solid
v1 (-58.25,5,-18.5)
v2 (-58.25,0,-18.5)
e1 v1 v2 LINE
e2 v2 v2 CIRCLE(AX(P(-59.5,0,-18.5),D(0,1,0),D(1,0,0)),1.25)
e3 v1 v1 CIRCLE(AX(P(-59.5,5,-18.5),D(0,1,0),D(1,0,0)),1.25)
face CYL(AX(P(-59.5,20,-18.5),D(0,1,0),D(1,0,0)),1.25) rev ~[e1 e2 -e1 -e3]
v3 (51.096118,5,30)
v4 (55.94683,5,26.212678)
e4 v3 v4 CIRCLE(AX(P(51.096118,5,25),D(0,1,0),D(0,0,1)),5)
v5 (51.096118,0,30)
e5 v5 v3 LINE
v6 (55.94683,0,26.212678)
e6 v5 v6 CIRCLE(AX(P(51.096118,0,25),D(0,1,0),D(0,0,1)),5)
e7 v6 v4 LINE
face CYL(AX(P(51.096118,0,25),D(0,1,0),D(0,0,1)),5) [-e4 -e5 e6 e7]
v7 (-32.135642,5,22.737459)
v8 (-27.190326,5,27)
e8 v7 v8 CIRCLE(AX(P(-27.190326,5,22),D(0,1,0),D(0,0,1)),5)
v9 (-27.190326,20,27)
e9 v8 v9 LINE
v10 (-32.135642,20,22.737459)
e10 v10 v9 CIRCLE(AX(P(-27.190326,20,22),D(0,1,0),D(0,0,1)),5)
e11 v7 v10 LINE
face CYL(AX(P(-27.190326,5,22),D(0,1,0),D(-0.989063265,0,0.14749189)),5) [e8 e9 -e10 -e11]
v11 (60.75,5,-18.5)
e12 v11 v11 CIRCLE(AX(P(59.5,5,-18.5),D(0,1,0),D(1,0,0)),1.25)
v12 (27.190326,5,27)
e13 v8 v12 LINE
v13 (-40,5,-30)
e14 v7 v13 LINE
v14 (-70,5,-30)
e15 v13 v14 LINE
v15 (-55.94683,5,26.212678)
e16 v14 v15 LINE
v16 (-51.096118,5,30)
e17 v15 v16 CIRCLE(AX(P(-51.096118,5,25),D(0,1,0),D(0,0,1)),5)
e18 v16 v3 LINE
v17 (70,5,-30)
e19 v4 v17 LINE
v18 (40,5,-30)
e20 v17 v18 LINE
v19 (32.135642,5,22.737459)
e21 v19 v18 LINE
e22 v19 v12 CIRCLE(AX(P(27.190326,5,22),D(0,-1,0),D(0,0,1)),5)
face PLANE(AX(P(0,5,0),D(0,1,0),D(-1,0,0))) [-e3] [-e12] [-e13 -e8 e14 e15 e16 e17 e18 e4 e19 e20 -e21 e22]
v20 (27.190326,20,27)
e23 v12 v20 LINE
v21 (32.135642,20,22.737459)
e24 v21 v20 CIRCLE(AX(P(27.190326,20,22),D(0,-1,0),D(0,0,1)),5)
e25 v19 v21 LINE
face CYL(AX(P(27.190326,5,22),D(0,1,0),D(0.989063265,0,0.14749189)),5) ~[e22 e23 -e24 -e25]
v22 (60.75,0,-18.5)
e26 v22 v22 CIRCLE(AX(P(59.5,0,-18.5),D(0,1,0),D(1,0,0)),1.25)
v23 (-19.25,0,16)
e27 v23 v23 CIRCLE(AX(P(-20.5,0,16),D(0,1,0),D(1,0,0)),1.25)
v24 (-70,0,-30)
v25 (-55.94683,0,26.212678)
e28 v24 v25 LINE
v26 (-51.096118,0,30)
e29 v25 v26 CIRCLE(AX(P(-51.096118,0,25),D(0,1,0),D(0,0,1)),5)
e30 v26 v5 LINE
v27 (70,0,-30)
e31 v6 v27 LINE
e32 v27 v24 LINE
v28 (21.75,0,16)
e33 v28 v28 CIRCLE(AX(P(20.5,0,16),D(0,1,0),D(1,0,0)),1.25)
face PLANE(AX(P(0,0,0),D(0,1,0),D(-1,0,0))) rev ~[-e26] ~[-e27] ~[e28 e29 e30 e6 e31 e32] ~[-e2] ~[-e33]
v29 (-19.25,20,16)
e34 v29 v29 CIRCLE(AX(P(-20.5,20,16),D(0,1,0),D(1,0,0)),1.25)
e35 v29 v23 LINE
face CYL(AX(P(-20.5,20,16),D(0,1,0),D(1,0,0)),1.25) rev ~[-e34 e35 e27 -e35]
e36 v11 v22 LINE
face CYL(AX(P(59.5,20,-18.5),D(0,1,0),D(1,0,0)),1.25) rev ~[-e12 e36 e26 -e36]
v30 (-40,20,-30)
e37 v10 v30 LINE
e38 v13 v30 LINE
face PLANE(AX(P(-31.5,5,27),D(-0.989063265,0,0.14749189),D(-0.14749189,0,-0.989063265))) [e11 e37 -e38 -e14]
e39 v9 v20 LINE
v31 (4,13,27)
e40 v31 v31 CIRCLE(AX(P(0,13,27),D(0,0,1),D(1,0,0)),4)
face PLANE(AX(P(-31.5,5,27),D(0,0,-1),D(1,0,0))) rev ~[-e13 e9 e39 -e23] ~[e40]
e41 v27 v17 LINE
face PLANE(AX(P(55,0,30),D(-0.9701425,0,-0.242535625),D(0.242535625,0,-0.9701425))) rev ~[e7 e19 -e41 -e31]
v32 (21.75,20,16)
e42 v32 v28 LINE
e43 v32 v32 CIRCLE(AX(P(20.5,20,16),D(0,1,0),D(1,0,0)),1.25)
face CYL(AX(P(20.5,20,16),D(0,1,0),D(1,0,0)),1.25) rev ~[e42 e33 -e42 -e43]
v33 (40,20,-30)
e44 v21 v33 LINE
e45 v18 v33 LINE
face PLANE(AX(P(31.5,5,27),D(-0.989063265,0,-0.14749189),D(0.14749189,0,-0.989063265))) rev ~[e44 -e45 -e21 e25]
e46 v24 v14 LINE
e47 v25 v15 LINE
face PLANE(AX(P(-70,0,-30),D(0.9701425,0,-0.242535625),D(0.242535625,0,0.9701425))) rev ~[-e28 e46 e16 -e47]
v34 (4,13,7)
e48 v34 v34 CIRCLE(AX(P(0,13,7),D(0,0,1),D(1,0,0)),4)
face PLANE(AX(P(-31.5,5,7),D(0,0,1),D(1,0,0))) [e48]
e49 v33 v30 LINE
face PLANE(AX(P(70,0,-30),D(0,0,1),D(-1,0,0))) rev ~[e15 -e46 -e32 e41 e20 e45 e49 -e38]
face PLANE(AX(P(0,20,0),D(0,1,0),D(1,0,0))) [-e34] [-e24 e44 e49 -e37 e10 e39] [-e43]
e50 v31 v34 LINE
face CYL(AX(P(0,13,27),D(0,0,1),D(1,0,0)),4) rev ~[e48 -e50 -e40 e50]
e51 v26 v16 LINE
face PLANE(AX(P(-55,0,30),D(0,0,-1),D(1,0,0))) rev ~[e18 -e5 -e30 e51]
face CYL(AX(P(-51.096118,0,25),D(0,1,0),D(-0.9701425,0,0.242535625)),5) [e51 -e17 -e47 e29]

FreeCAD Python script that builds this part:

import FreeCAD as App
import Part
import Sketcher
from FreeCAD import Vector
Q = App.Units.Quantity


def edges_at(feature, points):
    """Names of the edges that pass closest to the given points."""
    edges = feature.Shape.Edges
    near = lambda p: min(range(len(edges)), key=lambda i: edges[i].distToShape(Part.Vertex(*p))[0])
    return sorted({f"Edge{near(p) + 1}" for p in points})


def add_polygon(sketch, points):
    """Adds a closed chain of lines whose ends are joined by coincident constraints."""
    first, n = sketch.GeometryCount, len(points)
    for a, b in zip(points, points[1:] + points[:1]):
        sketch.addGeometry(Part.LineSegment(App.Vector(*a, 0), App.Vector(*b, 0)), False)
    for i in range(n):
        sketch.addConstraint(Sketcher.Constraint("Coincident", first + i, 2, first + (i + 1) % n, 1))

doc = App.newDocument("Part")
body = doc.addObject("PartDesign::Body", "Body")

sketch1 = body.newObject("Sketcher::SketchObject", "Sketch")
sketch1.AttachmentSupport = (doc.getObject("XZ_Plane"), [""])
sketch1.MapMode = "FlatFace"
add_polygon(sketch1, [(-70, -30), (-55, 30), (55, 30), (70, -30)])
sketch1.addConstraint([
    Sketcher.Constraint("Horizontal", 1),
    Sketcher.Constraint("Horizontal", 3),
    Sketcher.Constraint("Equal", 0, 2),
    Sketcher.Constraint("DistanceX", 1, 1, 1, 2, Q("110 mm")),
    Sketcher.Constraint("DistanceX", 3, 2, 3, 1, Q("140 mm")),
    Sketcher.Constraint("DistanceX", 0, 2, -1, 1, Q("55 mm")),
    Sketcher.Constraint("DistanceY", -1, 1, 0, 2, Q("30 mm")),
    Sketcher.Constraint("DistanceY", 2, 2, -1, 1, Q("30 mm")),
])
pad1 = body.newObject("PartDesign::Pad", "Pad")
pad1.Profile = sketch1
pad1.Length = 5
pad1.Reversed = True

sketch2 = body.newObject("Sketcher::SketchObject", "Sketch001")
sketch2.AttachmentSupport = (doc.getObject("XZ_Plane"), [""])
sketch2.MapMode = "FlatFace"
sketch2.AttachmentOffset = App.Placement(Vector(0, 0, -5), App.Rotation())
add_polygon(sketch2, [(-40, -30), (-32, 27), (32, 27), (40, -30)])
sketch2.addConstraint([
    Sketcher.Constraint("Horizontal", 1),
    Sketcher.Constraint("Horizontal", 3),
    Sketcher.Constraint("Equal", 0, 2),
    Sketcher.Constraint("DistanceX", 1, 1, 1, 2, Q("63 mm")),
    Sketcher.Constraint("DistanceX", 3, 2, 3, 1, Q("80 mm")),
    Sketcher.Constraint("DistanceX", -1, 1, 2, 2, Q("40 mm")),
    Sketcher.Constraint("DistanceY", -1, 1, 0, 2, Q("27 mm")),
    Sketcher.Constraint("DistanceY", 2, 2, -1, 1, Q("30 mm")),
])
pad2 = body.newObject("PartDesign::Pad", "Pad001")
pad2.Profile = sketch2
pad2.Length = 15
pad2.Reversed = True

sketch3 = body.newObject("Sketcher::SketchObject", "Sketch002")
sketch3.AttachmentSupport = (doc.getObject("XY_Plane"), [""])
sketch3.MapMode = "FlatFace"
sketch3.AttachmentOffset = App.Placement(Vector(0, 0, 27), App.Rotation())
sketch3.addGeometry(Part.Circle(Vector(0, 13, 0), Vector(0, 0, 1), 4), False)
sketch3.addConstraint([
    Sketcher.Constraint("PointOnObject", 0, 3, -2),
    Sketcher.Constraint("Diameter", 0, Q("8 mm")),
    Sketcher.Constraint("DistanceY", -1, 1, 0, 3, Q("13 mm")),
])
pocket1 = body.newObject("PartDesign::Pocket", "Pocket")
pocket1.Profile = sketch3
pocket1.Length = 20
doc.recompute()

fillet = body.newObject("PartDesign::Fillet", "Fillet")
fillet.Base = (pocket1, edges_at(pocket1, [
    (31.5, 12.5, 27),
    (-31.5, 12.5, 27),
    (55, 2.5, 30),
    (-55, 2.5, 30),
]))
fillet.Radius = 5

sketch4 = body.newObject("Sketcher::SketchObject", "Sketch003")
sketch4.AttachmentSupport = (doc.getObject("XZ_Plane"), [""])
sketch4.MapMode = "FlatFace"
sketch4.AttachmentOffset = App.Placement(Vector(0, 0, -20), App.Rotation())
sketch4.addGeometry([
    Part.Circle(Vector(-59.5, -18.5, 0), Vector(0, 0, 1), 1.2),
    Part.Circle(Vector(59.5, -18.5, 0), Vector(0, 0, 1), 1.2),
    Part.Circle(Vector(20.5, 16, 0), Vector(0, 0, 1), 1.2),
    Part.Circle(Vector(-20.5, 16, 0), Vector(0, 0, 1), 1.2),
], False)
sketch4.addConstraint([
    Sketcher.Constraint("Equal", 0, 1),
    Sketcher.Constraint("Equal", 1, 2),
    Sketcher.Constraint("Equal", 2, 3),
    Sketcher.Constraint("Symmetric", 0, 3, 1, 3, -2),
    Sketcher.Constraint("Symmetric", 2, 3, 3, 3, -2),
    Sketcher.Constraint("Diameter", 0, Q("2.5 mm")),
    Sketcher.Constraint("DistanceX", 0, 3, 1, 3, Q("119 mm")),
    Sketcher.Constraint("DistanceX", 3, 3, 2, 3, Q("41 mm")),
    Sketcher.Constraint("DistanceY", 1, 3, 2, 3, Q("34.5 mm")),
    Sketcher.Constraint("DistanceY", -1, 1, 2, 3, Q("16 mm")),
])
pocket2 = body.newObject("PartDesign::Pocket", "Pocket001")
pocket2.Profile = sketch4
pocket2.Type = "ThroughAll"
pocket2.Reversed = True

doc.recompute()
